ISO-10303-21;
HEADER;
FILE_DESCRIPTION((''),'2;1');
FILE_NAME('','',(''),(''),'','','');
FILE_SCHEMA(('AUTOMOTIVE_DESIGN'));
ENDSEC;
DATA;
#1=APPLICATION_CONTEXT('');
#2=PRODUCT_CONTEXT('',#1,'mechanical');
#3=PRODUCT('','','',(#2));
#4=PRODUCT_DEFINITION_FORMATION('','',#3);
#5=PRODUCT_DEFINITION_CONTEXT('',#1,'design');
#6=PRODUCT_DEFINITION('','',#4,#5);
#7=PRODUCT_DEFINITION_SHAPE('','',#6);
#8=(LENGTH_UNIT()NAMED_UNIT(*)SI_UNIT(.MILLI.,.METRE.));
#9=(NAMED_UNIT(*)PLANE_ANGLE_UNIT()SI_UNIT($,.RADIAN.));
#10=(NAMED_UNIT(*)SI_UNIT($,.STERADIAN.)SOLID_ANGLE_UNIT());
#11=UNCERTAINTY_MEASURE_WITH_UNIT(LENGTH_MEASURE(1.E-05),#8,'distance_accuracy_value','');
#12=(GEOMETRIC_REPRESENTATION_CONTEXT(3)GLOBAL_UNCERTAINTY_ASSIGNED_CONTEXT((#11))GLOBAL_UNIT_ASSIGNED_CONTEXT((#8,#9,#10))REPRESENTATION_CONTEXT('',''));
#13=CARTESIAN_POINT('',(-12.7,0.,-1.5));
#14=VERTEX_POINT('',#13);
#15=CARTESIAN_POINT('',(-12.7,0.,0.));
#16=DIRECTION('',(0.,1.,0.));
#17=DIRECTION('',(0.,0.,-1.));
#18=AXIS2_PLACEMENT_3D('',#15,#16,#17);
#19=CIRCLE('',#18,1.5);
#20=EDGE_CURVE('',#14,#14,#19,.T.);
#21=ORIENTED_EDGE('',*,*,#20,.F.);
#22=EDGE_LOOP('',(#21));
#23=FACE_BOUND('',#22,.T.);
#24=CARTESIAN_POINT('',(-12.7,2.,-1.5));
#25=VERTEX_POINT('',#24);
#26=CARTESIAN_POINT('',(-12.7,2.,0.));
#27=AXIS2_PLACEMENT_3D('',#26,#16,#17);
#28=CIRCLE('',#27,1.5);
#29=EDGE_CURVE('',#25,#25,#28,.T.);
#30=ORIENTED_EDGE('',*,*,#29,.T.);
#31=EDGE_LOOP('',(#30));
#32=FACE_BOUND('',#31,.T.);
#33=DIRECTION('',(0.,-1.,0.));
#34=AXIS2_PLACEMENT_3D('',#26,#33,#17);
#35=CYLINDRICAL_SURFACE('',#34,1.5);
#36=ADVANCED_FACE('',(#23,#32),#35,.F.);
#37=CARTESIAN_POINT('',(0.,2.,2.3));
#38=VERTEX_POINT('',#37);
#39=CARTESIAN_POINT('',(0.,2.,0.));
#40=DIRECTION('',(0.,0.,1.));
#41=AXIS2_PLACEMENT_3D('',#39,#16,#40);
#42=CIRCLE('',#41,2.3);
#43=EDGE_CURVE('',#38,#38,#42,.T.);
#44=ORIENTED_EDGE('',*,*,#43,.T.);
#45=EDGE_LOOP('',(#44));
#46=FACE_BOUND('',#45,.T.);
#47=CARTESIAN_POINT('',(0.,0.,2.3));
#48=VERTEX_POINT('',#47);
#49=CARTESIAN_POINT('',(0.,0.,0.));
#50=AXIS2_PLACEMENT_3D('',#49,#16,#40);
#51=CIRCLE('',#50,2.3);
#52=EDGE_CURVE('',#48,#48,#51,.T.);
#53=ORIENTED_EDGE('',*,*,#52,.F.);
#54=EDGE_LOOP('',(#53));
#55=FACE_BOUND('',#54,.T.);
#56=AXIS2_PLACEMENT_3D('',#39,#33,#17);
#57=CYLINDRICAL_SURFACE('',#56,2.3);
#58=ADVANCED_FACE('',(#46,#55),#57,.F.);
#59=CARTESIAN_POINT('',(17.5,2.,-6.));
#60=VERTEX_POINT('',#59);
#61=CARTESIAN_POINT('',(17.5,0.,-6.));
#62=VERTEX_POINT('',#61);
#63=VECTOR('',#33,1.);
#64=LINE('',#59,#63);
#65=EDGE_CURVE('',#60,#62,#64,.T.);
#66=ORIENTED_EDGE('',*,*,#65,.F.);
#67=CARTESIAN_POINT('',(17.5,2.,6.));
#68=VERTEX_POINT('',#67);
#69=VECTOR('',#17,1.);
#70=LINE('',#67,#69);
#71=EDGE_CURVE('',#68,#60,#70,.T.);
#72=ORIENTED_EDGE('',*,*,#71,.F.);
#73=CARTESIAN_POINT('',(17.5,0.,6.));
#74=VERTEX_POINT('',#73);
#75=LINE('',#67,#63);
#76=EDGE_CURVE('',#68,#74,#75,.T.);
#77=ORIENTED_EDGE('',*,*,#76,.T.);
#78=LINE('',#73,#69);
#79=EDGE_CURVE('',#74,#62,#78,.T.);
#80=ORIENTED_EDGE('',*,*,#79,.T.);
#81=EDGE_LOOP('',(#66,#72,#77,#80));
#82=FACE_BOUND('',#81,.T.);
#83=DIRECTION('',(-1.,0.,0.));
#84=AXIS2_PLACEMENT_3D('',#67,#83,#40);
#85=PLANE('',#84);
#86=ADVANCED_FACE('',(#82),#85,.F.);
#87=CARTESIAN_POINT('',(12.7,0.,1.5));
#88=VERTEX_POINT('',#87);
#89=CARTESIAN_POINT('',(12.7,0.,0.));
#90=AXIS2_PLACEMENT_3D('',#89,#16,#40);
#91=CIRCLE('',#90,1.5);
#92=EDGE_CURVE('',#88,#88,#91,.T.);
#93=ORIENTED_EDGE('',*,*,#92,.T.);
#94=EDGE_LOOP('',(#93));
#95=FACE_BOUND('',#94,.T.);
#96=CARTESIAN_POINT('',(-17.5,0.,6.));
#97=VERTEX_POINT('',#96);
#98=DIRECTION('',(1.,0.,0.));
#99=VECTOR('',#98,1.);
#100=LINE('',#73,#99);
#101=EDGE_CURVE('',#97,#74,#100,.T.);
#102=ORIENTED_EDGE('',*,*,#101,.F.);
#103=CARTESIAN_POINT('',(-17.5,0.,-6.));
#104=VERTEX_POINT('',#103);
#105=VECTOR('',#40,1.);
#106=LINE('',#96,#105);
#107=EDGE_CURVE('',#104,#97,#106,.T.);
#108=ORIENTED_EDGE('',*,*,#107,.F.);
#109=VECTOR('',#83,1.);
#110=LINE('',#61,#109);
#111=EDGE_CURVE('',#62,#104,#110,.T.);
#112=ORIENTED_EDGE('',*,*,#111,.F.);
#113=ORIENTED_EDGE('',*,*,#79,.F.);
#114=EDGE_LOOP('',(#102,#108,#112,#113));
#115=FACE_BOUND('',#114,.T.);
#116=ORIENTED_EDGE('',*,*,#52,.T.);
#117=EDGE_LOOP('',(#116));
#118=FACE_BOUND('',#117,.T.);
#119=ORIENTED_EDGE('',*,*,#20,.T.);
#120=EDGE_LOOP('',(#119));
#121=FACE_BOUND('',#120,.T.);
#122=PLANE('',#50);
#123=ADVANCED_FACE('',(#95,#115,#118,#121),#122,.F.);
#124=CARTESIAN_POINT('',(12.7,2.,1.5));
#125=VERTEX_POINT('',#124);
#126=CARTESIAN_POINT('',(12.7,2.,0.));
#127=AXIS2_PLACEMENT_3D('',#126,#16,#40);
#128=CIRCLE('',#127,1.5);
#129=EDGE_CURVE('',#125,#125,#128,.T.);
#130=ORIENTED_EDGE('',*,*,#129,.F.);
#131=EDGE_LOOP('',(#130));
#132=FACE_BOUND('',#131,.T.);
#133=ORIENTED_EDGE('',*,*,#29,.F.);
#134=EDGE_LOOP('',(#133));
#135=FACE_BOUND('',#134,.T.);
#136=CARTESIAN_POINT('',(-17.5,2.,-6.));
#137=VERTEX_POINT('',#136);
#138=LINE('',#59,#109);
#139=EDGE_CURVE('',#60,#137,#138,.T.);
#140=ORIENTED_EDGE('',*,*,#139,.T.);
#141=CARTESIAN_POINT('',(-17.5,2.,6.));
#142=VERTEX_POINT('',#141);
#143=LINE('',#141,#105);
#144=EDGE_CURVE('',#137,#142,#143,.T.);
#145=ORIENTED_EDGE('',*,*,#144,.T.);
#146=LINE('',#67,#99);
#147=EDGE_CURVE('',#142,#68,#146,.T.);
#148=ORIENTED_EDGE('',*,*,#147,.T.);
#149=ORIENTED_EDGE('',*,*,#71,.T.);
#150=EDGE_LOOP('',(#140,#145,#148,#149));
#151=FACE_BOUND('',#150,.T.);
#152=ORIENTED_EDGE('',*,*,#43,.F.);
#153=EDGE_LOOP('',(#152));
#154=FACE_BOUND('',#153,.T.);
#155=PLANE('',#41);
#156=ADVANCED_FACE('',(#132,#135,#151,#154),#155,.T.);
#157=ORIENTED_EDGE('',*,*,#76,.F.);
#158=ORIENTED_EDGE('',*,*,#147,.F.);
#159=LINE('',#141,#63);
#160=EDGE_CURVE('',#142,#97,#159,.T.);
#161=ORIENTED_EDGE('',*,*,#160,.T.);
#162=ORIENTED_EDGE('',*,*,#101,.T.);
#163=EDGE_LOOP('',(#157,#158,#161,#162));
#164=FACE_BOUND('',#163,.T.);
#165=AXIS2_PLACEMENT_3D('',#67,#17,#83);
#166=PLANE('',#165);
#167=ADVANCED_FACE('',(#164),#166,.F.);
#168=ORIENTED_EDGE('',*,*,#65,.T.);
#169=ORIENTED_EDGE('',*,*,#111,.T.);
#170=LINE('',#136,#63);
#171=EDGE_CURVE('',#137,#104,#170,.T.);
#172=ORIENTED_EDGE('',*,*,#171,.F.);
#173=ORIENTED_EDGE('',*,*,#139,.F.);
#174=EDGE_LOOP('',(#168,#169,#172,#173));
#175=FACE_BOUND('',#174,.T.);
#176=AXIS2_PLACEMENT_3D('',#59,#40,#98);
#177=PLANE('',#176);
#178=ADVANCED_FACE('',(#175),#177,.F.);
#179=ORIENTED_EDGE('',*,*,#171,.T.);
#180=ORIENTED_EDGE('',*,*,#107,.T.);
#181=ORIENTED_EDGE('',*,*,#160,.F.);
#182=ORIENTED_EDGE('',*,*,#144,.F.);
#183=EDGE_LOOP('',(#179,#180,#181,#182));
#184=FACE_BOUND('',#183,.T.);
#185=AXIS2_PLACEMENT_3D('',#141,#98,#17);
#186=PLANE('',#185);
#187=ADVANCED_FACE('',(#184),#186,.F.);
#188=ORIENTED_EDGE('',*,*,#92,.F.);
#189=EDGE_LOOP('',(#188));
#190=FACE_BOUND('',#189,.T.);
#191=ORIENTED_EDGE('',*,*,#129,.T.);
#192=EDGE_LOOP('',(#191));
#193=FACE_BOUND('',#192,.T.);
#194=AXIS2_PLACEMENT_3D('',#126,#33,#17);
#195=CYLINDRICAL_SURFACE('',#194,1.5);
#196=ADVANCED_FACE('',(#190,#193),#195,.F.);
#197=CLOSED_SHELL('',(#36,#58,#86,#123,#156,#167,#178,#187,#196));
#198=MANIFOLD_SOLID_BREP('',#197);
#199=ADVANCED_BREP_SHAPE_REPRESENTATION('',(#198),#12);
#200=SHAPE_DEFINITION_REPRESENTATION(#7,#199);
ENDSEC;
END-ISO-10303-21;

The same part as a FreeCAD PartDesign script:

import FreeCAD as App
import Part
import Sketcher

V = App.Vector

doc = App.newDocument("Part")
body = doc.addObject("PartDesign::Body", "Body")

sketch1 = body.newObject("Sketcher::SketchObject", "Sketch")
sketch1.AttachmentSupport = (doc.getObject("XZ_Plane"), [""])
sketch1.MapMode = "FlatFace"
sketch1.addGeometry(Part.LineSegment(V(-17.5, -6, 0), V(-17.5, 6, 0)), False)
sketch1.addGeometry(Part.LineSegment(V(-17.5, 6, 0), V(17.5, 6, 0)), False)
sketch1.addGeometry(Part.LineSegment(V(17.5, 6, 0), V(17.5, -6, 0)), False)
sketch1.addGeometry(Part.LineSegment(V(17.5, -6, 0), V(-17.5, -6, 0)), False)
sketch1.addGeometry(Part.Circle(V(-12.7, 0, 0), V(0, 0, 1), 1.5), False)
sketch1.addGeometry(Part.Circle(V(0, 0, 0), V(0, 0, 1), 2.3), False)
sketch1.addGeometry(Part.Circle(V(12.7, 0, 0), V(0, 0, 1), 1.5), False)
sketch1.addConstraint(Sketcher.Constraint("Coincident", 0, 2, 1, 1))
sketch1.addConstraint(Sketcher.Constraint("Coincident", 1, 2, 2, 1))
sketch1.addConstraint(Sketcher.Constraint("Coincident", 2, 2, 3, 1))
sketch1.addConstraint(Sketcher.Constraint("Coincident", 3, 2, 0, 1))
sketch1.addConstraint(Sketcher.Constraint("Vertical", 0))
sketch1.addConstraint(Sketcher.Constraint("Horizontal", 1))
sketch1.addConstraint(Sketcher.Constraint("Vertical", 2))
sketch1.addConstraint(Sketcher.Constraint("Horizontal", 3))
sketch1.addConstraint(Sketcher.Constraint("Coincident", 5, 3, -1, 1))
sketch1.addConstraint(Sketcher.Constraint("Equal", 4, 6))
sketch1.addConstraint(Sketcher.Constraint("Symmetric", 4, 3, 6, 3, -1, 1))
sketch1.addConstraint(Sketcher.Constraint("Symmetric", 0, 2, 2, 2, -1, 1))
sketch1.addConstraint(Sketcher.Constraint("PointOnObject", 4, 3, -1))
sketch1.addConstraint(Sketcher.Constraint("Diameter", 4, 3.0))
sketch1.addConstraint(Sketcher.Constraint("Diameter", 5, 4.6))
sketch1.addConstraint(Sketcher.Constraint("DistanceX", 1, 1, 1, 2, 35.0))
sketch1.addConstraint(Sketcher.Constraint("DistanceY", 0, 1, 0, 2, 12.0))
sketch1.addConstraint(Sketcher.Constraint("DistanceX", 4, 3, -1, 1, 12.7))
pad1 = body.newObject("PartDesign::Pad", "Pad")
pad1.Profile = sketch1
pad1.Length = 2
pad1.Reversed = True

doc.recompute()
